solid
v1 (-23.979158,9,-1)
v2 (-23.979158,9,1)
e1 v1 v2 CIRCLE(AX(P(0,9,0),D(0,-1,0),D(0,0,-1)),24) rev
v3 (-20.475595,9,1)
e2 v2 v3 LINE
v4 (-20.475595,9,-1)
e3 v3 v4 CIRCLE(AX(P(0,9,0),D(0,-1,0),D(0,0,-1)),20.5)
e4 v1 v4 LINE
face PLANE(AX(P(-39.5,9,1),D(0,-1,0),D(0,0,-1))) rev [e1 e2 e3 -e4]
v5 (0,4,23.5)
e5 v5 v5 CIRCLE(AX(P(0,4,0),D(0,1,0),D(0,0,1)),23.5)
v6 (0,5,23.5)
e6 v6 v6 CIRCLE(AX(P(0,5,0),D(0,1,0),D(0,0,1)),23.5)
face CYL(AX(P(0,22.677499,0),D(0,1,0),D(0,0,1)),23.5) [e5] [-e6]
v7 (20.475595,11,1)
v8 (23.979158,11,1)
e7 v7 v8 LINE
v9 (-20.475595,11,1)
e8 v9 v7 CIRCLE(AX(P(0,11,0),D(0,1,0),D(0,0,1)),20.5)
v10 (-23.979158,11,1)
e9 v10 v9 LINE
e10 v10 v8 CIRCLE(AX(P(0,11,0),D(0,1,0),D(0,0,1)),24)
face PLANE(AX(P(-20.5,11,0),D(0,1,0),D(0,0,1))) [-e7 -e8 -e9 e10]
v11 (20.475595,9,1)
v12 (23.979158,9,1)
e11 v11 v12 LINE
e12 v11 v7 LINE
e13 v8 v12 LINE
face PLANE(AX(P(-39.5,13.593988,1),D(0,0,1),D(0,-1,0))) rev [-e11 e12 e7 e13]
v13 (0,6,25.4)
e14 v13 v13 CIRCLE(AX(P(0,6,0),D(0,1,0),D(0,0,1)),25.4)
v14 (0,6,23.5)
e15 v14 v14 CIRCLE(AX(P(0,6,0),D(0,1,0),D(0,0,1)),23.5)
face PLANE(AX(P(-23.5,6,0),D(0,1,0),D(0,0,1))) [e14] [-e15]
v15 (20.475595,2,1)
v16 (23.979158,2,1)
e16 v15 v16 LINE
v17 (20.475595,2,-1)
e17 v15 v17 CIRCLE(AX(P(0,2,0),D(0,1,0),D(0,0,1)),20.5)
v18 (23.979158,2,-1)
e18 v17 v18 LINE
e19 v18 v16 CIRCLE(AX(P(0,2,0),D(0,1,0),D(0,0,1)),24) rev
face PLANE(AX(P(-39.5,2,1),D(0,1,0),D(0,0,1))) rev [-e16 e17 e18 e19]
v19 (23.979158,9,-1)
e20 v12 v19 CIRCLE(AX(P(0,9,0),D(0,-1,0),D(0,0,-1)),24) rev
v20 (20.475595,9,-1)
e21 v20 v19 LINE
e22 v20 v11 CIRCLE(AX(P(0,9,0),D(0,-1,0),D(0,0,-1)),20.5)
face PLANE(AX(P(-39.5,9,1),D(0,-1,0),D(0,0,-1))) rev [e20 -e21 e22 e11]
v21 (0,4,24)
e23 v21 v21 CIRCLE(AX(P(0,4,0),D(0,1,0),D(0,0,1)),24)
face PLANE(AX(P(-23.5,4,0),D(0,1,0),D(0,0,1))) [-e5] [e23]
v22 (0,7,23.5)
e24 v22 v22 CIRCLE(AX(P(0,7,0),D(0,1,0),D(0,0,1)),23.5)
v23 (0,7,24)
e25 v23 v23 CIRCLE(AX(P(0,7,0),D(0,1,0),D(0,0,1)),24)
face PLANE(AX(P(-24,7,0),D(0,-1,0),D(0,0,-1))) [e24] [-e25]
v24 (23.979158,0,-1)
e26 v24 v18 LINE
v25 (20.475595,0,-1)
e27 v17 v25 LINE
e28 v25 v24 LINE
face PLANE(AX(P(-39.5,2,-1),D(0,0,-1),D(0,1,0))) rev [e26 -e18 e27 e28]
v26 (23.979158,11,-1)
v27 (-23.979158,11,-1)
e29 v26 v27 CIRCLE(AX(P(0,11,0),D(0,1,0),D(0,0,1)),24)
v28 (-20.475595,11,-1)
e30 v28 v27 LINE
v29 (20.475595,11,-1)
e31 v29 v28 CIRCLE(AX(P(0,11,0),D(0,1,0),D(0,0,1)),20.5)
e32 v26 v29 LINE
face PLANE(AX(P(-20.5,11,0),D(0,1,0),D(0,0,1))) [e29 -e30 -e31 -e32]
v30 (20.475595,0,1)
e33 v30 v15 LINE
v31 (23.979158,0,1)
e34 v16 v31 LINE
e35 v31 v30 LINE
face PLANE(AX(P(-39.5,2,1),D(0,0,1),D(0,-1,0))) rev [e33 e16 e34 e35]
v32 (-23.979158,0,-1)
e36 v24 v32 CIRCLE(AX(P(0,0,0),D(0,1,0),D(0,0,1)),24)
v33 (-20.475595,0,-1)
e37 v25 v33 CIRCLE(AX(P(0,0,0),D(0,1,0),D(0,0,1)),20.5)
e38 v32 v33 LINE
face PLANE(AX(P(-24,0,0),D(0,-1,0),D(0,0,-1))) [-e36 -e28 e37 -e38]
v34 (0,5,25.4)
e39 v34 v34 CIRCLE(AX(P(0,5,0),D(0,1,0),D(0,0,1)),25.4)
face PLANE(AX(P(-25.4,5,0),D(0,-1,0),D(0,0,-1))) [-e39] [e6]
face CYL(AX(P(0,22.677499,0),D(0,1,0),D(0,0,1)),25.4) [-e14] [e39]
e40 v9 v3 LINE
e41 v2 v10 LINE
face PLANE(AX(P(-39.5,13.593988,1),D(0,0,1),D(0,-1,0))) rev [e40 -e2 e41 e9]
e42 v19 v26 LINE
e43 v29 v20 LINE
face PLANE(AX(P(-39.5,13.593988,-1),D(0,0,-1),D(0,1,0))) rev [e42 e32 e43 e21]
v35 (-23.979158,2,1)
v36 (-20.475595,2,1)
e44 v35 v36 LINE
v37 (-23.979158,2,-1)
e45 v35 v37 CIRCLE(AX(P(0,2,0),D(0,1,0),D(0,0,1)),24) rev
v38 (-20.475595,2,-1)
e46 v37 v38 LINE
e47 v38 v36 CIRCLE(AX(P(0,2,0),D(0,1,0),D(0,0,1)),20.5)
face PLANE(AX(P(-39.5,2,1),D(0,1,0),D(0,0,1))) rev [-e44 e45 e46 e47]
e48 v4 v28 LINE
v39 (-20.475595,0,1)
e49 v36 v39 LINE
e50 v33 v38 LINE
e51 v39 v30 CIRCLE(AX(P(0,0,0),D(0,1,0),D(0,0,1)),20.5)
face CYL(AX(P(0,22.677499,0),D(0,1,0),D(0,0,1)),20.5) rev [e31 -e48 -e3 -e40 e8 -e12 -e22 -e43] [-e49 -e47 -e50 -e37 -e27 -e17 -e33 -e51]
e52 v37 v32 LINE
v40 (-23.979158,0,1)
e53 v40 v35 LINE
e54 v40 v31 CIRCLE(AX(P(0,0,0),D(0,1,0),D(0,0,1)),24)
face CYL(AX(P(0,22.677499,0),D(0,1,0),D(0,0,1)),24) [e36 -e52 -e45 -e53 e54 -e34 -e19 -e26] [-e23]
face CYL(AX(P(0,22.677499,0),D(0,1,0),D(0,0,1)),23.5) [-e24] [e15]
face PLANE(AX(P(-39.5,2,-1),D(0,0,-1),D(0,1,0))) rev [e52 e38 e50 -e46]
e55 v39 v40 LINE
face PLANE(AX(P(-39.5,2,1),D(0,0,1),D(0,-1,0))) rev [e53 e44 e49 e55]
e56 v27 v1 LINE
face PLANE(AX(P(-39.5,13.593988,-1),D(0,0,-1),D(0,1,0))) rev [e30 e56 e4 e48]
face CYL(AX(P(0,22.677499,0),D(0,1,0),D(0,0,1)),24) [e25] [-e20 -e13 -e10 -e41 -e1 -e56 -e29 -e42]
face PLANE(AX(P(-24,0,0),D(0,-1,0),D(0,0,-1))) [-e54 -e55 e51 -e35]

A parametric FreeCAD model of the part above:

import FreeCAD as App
import Part
import Sketcher
Q = App.Units.Quantity

doc = App.newDocument("Part")
params = doc.addObject("Spreadsheet::Sheet", "Params")
for row, (alias, value) in enumerate([
    ("sketch1_height", "4 mm"),
    ("sketch1_height2", "1 mm"),
    ("sketch1_width", "3.5 mm"),
    ("sketch1_width2", "0.5 mm"),
    ("sketch1_width3", "1.9 mm"),
    ("revolution_angle", "360 deg"),
    ("sketch2_height", "2 mm"),
    ("pocket1_length", "79 mm"),
], start=1):
    params.set(f"A{row}", alias)
    params.set(f"B{row}", "=" + value)
    params.setAlias(f"B{row}", alias)

body = doc.addObject("PartDesign::Body", "Body")

sketch1 = body.newObject("Sketcher::SketchObject", "Sketch")
sketch1.AttachmentSupport = (doc.getObject("XY_Plane"), [""])
sketch1.MapMode = "FlatFace"
sketch1.addGeometry([
    Part.LineSegment(App.Vector(-20.5, 11, 0), App.Vector(-24, 11, 0)),
    Part.LineSegment(App.Vector(-24, 11, 0), App.Vector(-24, 7, 0)),
    Part.LineSegment(App.Vector(-24, 7, 0), App.Vector(-23.5, 7, 0)),
    Part.LineSegment(App.Vector(-23.5, 7, 0), App.Vector(-23.5, 6, 0)),
    Part.LineSegment(App.Vector(-23.5, 6, 0), App.Vector(-25.4, 6, 0)),
    Part.LineSegment(App.Vector(-25.4, 6, 0), App.Vector(-25.4, 5, 0)),
    Part.LineSegment(App.Vector(-25.4, 5, 0), App.Vector(-23.5, 5, 0)),
    Part.LineSegment(App.Vector(-23.5, 5, 0), App.Vector(-23.5, 4, 0)),
    Part.LineSegment(App.Vector(-23.5, 4, 0), App.Vector(-24, 4, 0)),
    Part.LineSegment(App.Vector(-24, 4, 0), App.Vector(-24, 0, 0)),
    Part.LineSegment(App.Vector(-24, 0, 0), App.Vector(-20.5, 0, 0)),
    Part.LineSegment(App.Vector(-20.5, 0, 0), App.Vector(-20.5, 11, 0)),
], False)
sketch1.addConstraint([
    Sketcher.Constraint("Coincident", 0, 2, 1, 1),
    Sketcher.Constraint("Coincident", 1, 2, 2, 1),
    Sketcher.Constraint("Coincident", 2, 2, 3, 1),
    Sketcher.Constraint("Coincident", 3, 2, 4, 1),
    Sketcher.Constraint("Coincident", 4, 2, 5, 1),
    Sketcher.Constraint("Coincident", 5, 2, 6, 1),
    Sketcher.Constraint("Coincident", 6, 2, 7, 1),
    Sketcher.Constraint("Coincident", 7, 2, 8, 1),
    Sketcher.Constraint("Coincident", 8, 2, 9, 1),
    Sketcher.Constraint("Coincident", 9, 2, 10, 1),
    Sketcher.Constraint("Coincident", 10, 2, 11, 1),
    Sketcher.Constraint("Coincident", 11, 2, 0, 1),
    Sketcher.Constraint("Horizontal", 0),
    Sketcher.Constraint("Vertical", 1),
    Sketcher.Constraint("Horizontal", 2),
    Sketcher.Constraint("Vertical", 3),
    Sketcher.Constraint("Horizontal", 4),
    Sketcher.Constraint("Vertical", 5),
    Sketcher.Constraint("Horizontal", 6),
    Sketcher.Constraint("Vertical", 7),
    Sketcher.Constraint("Horizontal", 8),
    Sketcher.Constraint("Vertical", 9),
    Sketcher.Constraint("Horizontal", 10),
    Sketcher.Constraint("Vertical", 11),
    Sketcher.Constraint("PointOnObject", 9, 2, -1),
    Sketcher.Constraint("Vertical", 3, 2, 6, 2),
    Sketcher.Constraint("Vertical", 1, 2, 8, 2),
    Sketcher.Constraint("Equal", 3, 5),
    Sketcher.Constraint("Equal", 5, 7),
    Sketcher.Constraint("Equal", 1, 9),
    Sketcher.Constraint("DistanceY", 1, 2, 1, 1, Q("4 mm")),
    Sketcher.Constraint("DistanceY", 3, 2, 3, 1, Q("1 mm")),
    Sketcher.Constraint("DistanceX", 0, 2, 0, 1, Q("3.5 mm")),
    Sketcher.Constraint("DistanceX", 2, 1, 2, 2, Q("0.5 mm")),
    Sketcher.Constraint("DistanceX", 4, 2, 4, 1, Q("1.9 mm")),
    Sketcher.Constraint("DistanceX", 0, 2, -1, 1, Q("24 mm")),
])
sketch1.setExpression("Constraints[30]", "Params.sketch1_height")
sketch1.setExpression("Constraints[31]", "Params.sketch1_height2")
sketch1.setExpression("Constraints[32]", "Params.sketch1_width")
sketch1.setExpression("Constraints[33]", "Params.sketch1_width2")
sketch1.setExpression("Constraints[34]", "Params.sketch1_width3")
revolution = body.newObject("PartDesign::Revolution", "Revolution")
revolution.Profile = sketch1
revolution.ReferenceAxis = (sketch1, ["V_Axis"])
revolution.setExpression("Angle", "Params.revolution_angle")

sketch2 = body.newObject("Sketcher::SketchObject", "Sketch001")
sketch2.AttachmentSupport = (doc.getObject("YZ_Plane"), [""])
sketch2.MapMode = "FlatFace"
sketch2.addGeometry([
    Part.LineSegment(App.Vector(13.6, 1, 0), App.Vector(9, 1, 0)),
    Part.LineSegment(App.Vector(9, 1, 0), App.Vector(9, -1, 0)),
    Part.LineSegment(App.Vector(9, -1, 0), App.Vector(13.6, -1, 0)),
    Part.LineSegment(App.Vector(13.6, -1, 0), App.Vector(13.6, 1, 0)),
    Part.LineSegment(App.Vector(2, 1, 0), App.Vector(-4.7, 1, 0)),
    Part.LineSegment(App.Vector(-4.7, 1, 0), App.Vector(-4.7, -1, 0)),
    Part.LineSegment(App.Vector(-4.7, -1, 0), App.Vector(2, -1, 0)),
    Part.LineSegment(App.Vector(2, -1, 0), App.Vector(2, 1, 0)),
], False)
sketch2.addConstraint([
    Sketcher.Constraint("Coincident", 0, 2, 1, 1),
    Sketcher.Constraint("Coincident", 1, 2, 2, 1),
    Sketcher.Constraint("Coincident", 2, 2, 3, 1),
    Sketcher.Constraint("Coincident", 3, 2, 0, 1),
    Sketcher.Constraint("Coincident", 4, 2, 5, 1),
    Sketcher.Constraint("Coincident", 5, 2, 6, 1),
    Sketcher.Constraint("Coincident", 6, 2, 7, 1),
    Sketcher.Constraint("Coincident", 7, 2, 4, 1),
    Sketcher.Constraint("Horizontal", 0),
    Sketcher.Constraint("Vertical", 1),
    Sketcher.Constraint("Horizontal", 2),
    Sketcher.Constraint("Vertical", 3),
    Sketcher.Constraint("Horizontal", 4),
    Sketcher.Constraint("Vertical", 5),
    Sketcher.Constraint("Horizontal", 6),
    Sketcher.Constraint("Vertical", 7),
    Sketcher.Constraint("Horizontal", 3, 2, 4, 2),
    Sketcher.Constraint("Horizontal", 2, 2, 5, 2),
    Sketcher.Constraint("DistanceY", 1, 2, 1, 1, Q("2 mm")),
    Sketcher.Constraint("DistanceX", -1, 1, 0, 2, Q("9 mm")),
    Sketcher.Constraint("DistanceY", -1, 1, 0, 2, Q("1 mm")),
    Sketcher.Constraint("DistanceX", -1, 1, 6, 2, Q("2 mm")),
    Sketcher.Constraint("DistanceX", 0, 2, 0, 1, Q("4.593988 mm")),
    Sketcher.Constraint("DistanceX", 4, 2, 4, 1, Q("6.667892 mm")),
])
sketch2.setExpression("Constraints[18]", "Params.sketch2_height")
pocket1 = body.newObject("PartDesign::Pocket", "Pocket")
pocket1.Profile = sketch2
pocket1.setExpression("Length", "Params.pocket1_length")
pocket1.Midplane = True

doc.recompute()
